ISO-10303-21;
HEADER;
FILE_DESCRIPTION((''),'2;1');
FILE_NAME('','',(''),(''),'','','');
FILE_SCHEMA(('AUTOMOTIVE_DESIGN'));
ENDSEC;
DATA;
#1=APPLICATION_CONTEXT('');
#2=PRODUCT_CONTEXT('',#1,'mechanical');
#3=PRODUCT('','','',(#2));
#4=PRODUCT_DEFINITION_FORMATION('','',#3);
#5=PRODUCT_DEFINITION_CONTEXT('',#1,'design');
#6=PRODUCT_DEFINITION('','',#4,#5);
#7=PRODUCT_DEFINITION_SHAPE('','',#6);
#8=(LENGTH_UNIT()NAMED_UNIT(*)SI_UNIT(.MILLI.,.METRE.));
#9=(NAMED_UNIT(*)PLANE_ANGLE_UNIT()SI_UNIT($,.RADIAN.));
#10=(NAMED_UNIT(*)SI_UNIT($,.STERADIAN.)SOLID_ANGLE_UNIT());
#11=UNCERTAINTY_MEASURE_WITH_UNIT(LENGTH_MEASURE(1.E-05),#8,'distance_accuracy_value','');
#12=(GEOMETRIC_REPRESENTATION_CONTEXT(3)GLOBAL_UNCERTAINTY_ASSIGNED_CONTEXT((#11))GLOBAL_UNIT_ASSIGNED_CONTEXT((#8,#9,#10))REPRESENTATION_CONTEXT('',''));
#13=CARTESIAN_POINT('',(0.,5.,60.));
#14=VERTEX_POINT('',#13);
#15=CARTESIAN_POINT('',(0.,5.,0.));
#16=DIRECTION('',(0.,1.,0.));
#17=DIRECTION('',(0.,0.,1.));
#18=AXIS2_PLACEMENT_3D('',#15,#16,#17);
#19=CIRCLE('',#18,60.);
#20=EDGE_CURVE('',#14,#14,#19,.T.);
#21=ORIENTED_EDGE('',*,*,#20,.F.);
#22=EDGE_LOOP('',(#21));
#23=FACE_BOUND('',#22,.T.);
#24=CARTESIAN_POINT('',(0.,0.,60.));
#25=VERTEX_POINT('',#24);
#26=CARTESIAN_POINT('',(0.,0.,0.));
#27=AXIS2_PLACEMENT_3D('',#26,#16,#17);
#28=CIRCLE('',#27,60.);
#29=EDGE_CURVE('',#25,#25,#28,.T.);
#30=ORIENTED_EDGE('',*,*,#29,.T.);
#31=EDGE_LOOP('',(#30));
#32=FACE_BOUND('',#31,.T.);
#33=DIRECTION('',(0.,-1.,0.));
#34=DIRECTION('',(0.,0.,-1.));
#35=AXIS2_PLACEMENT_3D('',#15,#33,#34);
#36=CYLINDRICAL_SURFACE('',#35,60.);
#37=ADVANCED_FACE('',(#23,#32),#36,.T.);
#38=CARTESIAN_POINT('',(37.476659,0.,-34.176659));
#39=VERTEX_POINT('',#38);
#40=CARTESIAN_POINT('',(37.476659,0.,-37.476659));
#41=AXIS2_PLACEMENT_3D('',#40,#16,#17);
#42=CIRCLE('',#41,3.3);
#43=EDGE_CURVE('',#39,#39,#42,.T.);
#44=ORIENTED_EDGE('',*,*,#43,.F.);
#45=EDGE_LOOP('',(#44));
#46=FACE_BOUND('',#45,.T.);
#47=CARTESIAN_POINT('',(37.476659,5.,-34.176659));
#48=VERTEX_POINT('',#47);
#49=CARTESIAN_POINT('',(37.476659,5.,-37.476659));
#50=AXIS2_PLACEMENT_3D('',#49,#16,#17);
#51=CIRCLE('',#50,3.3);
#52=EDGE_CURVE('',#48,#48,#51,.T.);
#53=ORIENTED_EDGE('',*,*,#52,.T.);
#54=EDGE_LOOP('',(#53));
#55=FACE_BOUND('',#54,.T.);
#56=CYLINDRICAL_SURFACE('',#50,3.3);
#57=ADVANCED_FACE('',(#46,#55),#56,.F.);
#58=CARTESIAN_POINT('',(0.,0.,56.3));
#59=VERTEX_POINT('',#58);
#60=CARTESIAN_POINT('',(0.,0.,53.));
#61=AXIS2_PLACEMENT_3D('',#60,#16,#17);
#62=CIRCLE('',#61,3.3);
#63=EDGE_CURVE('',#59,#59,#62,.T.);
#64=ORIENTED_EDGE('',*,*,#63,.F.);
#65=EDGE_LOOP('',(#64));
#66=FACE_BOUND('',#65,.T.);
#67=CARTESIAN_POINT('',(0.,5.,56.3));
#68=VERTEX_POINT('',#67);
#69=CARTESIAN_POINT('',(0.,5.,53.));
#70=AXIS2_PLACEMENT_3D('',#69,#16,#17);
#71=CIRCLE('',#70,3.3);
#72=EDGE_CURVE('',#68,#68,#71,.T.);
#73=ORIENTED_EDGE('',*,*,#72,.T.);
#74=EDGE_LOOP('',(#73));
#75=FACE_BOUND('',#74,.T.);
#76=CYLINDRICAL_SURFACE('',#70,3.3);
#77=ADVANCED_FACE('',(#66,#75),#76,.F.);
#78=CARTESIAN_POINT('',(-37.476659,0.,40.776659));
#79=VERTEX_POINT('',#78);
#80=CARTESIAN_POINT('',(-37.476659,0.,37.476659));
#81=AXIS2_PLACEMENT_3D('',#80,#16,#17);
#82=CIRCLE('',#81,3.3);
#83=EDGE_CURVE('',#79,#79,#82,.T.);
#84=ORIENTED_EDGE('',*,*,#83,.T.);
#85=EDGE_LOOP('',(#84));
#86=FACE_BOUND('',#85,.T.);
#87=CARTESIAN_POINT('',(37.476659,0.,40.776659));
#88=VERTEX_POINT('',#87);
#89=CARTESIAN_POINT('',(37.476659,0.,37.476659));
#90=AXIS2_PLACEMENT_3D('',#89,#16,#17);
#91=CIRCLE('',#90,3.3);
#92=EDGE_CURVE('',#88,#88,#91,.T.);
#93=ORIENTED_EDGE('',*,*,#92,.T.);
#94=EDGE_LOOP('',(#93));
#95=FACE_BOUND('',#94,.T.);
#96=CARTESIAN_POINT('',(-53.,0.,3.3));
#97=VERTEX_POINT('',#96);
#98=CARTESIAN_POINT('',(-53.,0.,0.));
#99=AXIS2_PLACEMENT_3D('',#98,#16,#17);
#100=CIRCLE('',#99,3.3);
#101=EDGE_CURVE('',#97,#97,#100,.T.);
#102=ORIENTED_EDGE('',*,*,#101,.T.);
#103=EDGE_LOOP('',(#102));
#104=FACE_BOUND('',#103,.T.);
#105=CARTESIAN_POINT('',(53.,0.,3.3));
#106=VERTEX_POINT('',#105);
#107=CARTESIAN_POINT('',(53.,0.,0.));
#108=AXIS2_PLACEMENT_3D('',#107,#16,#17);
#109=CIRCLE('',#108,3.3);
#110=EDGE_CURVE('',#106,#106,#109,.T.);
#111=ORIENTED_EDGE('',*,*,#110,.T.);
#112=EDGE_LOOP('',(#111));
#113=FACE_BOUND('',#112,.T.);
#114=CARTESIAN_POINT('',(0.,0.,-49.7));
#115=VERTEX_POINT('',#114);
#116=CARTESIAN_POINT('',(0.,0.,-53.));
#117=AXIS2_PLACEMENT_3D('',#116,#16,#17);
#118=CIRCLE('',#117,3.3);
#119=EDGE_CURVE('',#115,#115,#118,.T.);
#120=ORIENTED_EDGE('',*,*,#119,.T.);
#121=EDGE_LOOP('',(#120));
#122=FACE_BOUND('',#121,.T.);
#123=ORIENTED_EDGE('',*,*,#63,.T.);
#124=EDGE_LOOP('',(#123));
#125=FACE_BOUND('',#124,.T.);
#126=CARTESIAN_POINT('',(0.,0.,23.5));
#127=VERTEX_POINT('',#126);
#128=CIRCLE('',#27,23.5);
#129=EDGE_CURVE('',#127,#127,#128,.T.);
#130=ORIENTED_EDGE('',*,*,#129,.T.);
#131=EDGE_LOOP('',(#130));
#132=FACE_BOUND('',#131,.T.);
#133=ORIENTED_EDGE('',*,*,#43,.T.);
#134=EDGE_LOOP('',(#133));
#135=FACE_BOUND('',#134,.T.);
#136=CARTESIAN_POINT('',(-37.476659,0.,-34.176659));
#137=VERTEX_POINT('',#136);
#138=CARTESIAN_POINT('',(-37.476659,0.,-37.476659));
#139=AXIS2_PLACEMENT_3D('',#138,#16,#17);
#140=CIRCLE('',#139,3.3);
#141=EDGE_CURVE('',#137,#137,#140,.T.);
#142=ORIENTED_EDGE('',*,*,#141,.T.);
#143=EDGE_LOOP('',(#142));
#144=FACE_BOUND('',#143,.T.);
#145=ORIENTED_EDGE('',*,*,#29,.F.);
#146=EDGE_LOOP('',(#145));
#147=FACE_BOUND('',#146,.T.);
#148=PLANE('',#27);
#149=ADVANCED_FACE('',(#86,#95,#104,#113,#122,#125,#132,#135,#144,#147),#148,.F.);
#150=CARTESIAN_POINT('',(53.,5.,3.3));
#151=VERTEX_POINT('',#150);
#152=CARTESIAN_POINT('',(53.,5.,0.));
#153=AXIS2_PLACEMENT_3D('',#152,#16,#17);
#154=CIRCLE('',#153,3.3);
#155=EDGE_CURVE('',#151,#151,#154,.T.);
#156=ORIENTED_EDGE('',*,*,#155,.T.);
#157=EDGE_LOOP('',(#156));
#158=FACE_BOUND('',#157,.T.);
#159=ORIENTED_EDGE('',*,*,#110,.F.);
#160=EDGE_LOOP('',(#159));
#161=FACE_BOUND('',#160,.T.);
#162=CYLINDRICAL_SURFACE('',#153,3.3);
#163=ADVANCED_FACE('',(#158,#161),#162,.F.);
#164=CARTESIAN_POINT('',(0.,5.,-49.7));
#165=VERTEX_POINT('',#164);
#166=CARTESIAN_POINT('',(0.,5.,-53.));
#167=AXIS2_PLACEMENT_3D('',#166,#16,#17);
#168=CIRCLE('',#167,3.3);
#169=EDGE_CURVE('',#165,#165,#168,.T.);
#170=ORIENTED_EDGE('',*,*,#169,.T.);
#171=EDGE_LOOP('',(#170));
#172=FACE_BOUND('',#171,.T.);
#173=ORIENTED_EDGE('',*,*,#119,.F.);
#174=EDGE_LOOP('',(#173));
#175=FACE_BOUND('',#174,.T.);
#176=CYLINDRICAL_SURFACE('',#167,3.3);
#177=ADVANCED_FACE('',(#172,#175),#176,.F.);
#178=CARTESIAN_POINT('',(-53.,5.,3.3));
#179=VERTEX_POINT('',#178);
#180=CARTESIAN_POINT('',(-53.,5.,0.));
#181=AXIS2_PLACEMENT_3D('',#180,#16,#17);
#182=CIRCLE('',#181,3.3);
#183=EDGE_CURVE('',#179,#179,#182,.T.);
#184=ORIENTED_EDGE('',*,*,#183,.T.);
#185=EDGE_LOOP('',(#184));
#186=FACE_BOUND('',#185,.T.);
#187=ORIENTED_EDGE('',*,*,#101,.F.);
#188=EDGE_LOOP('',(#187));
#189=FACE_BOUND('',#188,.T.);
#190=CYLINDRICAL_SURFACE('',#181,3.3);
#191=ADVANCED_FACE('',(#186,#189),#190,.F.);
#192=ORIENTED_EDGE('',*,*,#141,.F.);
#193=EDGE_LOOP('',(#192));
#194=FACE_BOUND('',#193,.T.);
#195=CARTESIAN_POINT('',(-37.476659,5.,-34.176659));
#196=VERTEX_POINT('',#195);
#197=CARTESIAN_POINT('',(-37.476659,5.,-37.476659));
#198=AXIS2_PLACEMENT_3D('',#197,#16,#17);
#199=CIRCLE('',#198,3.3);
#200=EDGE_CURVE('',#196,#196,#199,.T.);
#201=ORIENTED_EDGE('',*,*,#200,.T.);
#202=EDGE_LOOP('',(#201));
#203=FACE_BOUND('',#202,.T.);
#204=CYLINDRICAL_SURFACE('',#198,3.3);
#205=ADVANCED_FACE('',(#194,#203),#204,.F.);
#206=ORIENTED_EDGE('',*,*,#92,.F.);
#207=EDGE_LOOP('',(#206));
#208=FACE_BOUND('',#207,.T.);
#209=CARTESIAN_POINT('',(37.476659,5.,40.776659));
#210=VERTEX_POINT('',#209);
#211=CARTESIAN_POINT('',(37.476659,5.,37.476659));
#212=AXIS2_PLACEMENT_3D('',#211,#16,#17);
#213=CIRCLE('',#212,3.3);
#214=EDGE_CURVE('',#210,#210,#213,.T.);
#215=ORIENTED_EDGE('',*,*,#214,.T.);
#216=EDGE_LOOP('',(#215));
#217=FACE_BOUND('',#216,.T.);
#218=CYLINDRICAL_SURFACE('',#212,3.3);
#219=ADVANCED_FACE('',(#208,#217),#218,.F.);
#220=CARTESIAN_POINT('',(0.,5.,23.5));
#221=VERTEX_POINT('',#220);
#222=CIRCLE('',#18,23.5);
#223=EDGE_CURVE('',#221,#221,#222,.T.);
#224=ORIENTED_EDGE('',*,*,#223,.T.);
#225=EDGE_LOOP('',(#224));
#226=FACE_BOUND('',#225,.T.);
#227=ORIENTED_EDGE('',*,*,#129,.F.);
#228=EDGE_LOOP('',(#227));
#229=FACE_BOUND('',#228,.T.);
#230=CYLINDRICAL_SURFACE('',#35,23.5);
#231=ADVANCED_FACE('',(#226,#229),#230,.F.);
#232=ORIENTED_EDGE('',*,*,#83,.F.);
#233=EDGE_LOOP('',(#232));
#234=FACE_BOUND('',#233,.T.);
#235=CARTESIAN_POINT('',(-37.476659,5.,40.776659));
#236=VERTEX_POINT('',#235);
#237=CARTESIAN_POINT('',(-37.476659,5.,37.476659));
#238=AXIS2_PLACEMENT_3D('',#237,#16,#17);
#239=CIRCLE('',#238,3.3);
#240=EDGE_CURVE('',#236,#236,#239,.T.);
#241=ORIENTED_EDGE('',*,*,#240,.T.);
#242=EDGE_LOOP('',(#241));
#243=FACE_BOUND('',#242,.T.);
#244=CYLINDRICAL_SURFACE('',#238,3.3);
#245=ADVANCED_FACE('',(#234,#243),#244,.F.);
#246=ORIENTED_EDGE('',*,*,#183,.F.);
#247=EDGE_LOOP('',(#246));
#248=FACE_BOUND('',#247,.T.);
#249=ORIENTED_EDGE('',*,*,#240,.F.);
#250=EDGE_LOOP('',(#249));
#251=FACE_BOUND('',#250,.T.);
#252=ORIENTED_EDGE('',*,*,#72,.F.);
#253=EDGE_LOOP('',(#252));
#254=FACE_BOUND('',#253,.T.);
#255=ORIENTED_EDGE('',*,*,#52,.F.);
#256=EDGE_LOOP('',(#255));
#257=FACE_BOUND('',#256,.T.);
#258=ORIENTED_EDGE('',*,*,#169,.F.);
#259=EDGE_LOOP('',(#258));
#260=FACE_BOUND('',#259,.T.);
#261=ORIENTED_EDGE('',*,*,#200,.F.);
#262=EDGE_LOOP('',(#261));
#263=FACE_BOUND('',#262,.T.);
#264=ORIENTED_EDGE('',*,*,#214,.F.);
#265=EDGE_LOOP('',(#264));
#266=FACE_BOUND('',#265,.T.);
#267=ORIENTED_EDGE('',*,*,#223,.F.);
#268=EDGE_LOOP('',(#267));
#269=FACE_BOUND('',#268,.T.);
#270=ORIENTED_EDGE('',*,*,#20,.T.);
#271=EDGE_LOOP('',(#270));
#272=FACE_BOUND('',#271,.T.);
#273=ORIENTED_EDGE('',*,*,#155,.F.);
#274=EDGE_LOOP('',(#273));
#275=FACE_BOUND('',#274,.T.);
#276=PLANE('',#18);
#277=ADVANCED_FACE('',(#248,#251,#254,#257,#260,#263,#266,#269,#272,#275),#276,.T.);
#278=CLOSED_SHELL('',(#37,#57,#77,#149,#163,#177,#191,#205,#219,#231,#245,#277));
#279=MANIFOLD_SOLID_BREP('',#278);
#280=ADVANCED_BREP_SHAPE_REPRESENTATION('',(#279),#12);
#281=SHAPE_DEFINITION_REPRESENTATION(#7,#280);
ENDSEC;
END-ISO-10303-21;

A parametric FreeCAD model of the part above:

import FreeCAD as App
import Part
import Sketcher
from FreeCAD import Vector

doc = App.newDocument("Part")
params = doc.addObject("Spreadsheet::Sheet", "Params")
for row, (alias, value) in enumerate([
    ("sketch1_diameter", "120 mm"),
    ("sketch1_diameter2", "47 mm"),
    ("pad1_length", "5 mm"),
    ("sketch2_diameter", "6.6 mm"),
    ("hole_diameter", "6.6 mm"),
], start=1):
    params.set(f"A{row}", alias)
    params.set(f"B{row}", "=" + value)
    params.setAlias(f"B{row}", alias)

body = doc.addObject("PartDesign::Body", "Body")

# Sketch on XZ plane
sketch1 = body.newObject("Sketcher::SketchObject", "Sketch")
sketch1.AttachmentSupport = (doc.getObject("XZ_Plane"), [""])
sketch1.MapMode = "FlatFace"
sketch1.addGeometry([
    Part.Circle(Vector(0, 0, 0), Vector(0, 0, 1), 60),
    Part.Circle(Vector(0, 0, 0), Vector(0, 0, 1), 23.5),
], False)
sketch1.addConstraint([
    Sketcher.Constraint("Coincident", 0, 3, -1, 1),
    Sketcher.Constraint("Coincident", 1, 3, -1, 1),
    Sketcher.Constraint("Diameter", 0, 120.0),
    Sketcher.Constraint("Diameter", 1, 47.0),
])
sketch1.setExpression("Constraints[2]", "Params.sketch1_diameter")
sketch1.setExpression("Constraints[3]", "Params.sketch1_diameter2")
pad1 = body.newObject("PartDesign::Pad", "Pad")
pad1.Profile = sketch1
pad1.setExpression("Length", "Params.pad1_length")
pad1.Reversed = True

# Sketch on XZ plane
sketch2 = body.newObject("Sketcher::SketchObject", "Sketch001")
sketch2.AttachmentSupport = (doc.getObject("XZ_Plane"), [""])
sketch2.MapMode = "FlatFace"
sketch2.AttachmentOffset = App.Placement(Vector(0, 0, -5), App.Rotation())
sketch2.addGeometry([
    Part.Circle(Vector(-37.476659, -37.476659, 0), Vector(0, 0, 1), 3.3),  # 0
    Part.Circle(Vector(0, -53, 0), Vector(0, 0, 1), 3.3),  # 1
    Part.Circle(Vector(37.476659, -37.476659, 0), Vector(0, 0, 1), 3.3),  # 2
    Part.Circle(Vector(53, 0, 0), Vector(0, 0, 1), 3.3),  # 3
    Part.Circle(Vector(37.476659, 37.476659, 0), Vector(0, 0, 1), 3.3),  # 4
    Part.Circle(Vector(0, 53, 0), Vector(0, 0, 1), 3.3),  # 5
    Part.Circle(Vector(-37.476659, 37.476659, 0), Vector(0, 0, 1), 3.3),  # 6
    Part.Circle(Vector(-53, 0, 0), Vector(0, 0, 1), 3.3),  # 7
], False)
sketch2.addConstraint([
    Sketcher.Constraint("Equal", 0, 1),
    Sketcher.Constraint("Equal", 1, 2),
    Sketcher.Constraint("Equal", 2, 3),
    Sketcher.Constraint("Equal", 3, 4),
    Sketcher.Constraint("Equal", 4, 5),
    Sketcher.Constraint("Equal", 5, 6),
    Sketcher.Constraint("Equal", 6, 7),
    Sketcher.Constraint("Symmetric", 0, 3, 4, 3, -1, 1),
    Sketcher.Constraint("Symmetric", 1, 3, 5, 3, -1, 1),
    Sketcher.Constraint("Symmetric", 2, 3, 6, 3, -1, 1),
    Sketcher.Constraint("Symmetric", 3, 3, 7, 3, -1, 1),
    Sketcher.Constraint("Symmetric", 0, 3, 2, 3, -2),
    Sketcher.Constraint("PointOnObject", 1, 3, -2),
    Sketcher.Constraint("PointOnObject", 3, 3, -1),
    Sketcher.Constraint("Diameter", 0, 6.6),
    Sketcher.Constraint("DistanceY", 1, 3, -1, 1, 53.0),
    Sketcher.Constraint("DistanceX", -1, 1, 3, 3, 53.0),
    Sketcher.Constraint("DistanceX", 0, 3, -1, 1, 37.476659),
    Sketcher.Constraint("DistanceY", 0, 3, -1, 1, 37.476659),
])
sketch2.setExpression("Constraints[14]", "Params.sketch2_diameter")
doc.recompute()
hole = body.newObject("PartDesign::Hole", "Hole")
hole.Profile = sketch2
hole.ThreadType = "None"
hole.setExpression("Diameter", "Params.hole_diameter")
hole.DepthType = "ThroughAll"
hole.Reversed = True

doc.recompute()
